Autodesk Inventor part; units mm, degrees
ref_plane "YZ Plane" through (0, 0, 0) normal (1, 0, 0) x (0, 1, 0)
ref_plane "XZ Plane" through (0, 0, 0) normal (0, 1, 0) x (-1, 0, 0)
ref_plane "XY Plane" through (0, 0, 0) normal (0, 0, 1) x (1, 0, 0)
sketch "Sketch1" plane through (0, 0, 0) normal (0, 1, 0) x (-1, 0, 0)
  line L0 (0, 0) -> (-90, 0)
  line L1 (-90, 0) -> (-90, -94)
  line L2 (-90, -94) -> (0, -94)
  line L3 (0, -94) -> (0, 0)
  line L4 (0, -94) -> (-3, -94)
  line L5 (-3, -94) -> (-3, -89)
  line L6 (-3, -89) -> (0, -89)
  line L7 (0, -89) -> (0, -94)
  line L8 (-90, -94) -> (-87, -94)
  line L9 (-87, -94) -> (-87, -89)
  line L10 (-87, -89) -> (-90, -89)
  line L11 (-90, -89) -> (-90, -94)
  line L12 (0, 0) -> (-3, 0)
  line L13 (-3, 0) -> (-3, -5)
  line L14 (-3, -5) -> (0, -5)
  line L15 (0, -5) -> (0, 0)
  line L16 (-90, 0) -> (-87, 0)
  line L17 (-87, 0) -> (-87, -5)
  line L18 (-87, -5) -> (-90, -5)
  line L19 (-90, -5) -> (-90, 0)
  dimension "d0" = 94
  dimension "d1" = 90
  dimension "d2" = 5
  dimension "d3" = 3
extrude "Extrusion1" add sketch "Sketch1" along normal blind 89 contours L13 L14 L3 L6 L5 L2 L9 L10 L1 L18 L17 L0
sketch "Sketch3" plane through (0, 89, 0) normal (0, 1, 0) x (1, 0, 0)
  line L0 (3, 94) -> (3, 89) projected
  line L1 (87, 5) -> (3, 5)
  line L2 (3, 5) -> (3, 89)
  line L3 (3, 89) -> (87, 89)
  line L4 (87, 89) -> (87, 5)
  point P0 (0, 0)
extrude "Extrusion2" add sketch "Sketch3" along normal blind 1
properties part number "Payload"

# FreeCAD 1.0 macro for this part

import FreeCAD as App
import Part
import Sketcher

V = App.Vector
Q = App.Units.Quantity

doc = App.newDocument("Part")
body = doc.addObject("PartDesign::Body", "Body")

sketch1 = body.newObject("Sketcher::SketchObject", "Sketch")
sketch1.AttachmentSupport = (doc.getObject("XZ_Plane"), [""])
sketch1.MapMode = "FlatFace"
sketch1.addGeometry([
    Part.LineSegment(V(3, -5, 0), V(3, 0, 0)),
    Part.LineSegment(V(3, 0, 0), V(87, 0, 0)),
    Part.LineSegment(V(87, 0, 0), V(87, -5, 0)),
    Part.LineSegment(V(87, -5, 0), V(90, -5, 0)),
    Part.LineSegment(V(90, -5, 0), V(90, -89, 0)),
    Part.LineSegment(V(90, -89, 0), V(87, -89, 0)),
    Part.LineSegment(V(87, -89, 0), V(87, -94, 0)),
    Part.LineSegment(V(87, -94, 0), V(3, -94, 0)),
    Part.LineSegment(V(3, -94, 0), V(3, -89, 0)),
    Part.LineSegment(V(3, -89, 0), V(0, -89, 0)),
    Part.LineSegment(V(0, -89, 0), V(0, -5, 0)),
    Part.LineSegment(V(0, -5, 0), V(3, -5, 0)),
], False)
sketch1.addConstraint([
    Sketcher.Constraint("Coincident", 0, 2, 1, 1),
    Sketcher.Constraint("Coincident", 1, 2, 2, 1),
    Sketcher.Constraint("Coincident", 2, 2, 3, 1),
    Sketcher.Constraint("Coincident", 3, 2, 4, 1),
    Sketcher.Constraint("Coincident", 4, 2, 5, 1),
    Sketcher.Constraint("Coincident", 5, 2, 6, 1),
    Sketcher.Constraint("Coincident", 6, 2, 7, 1),
    Sketcher.Constraint("Coincident", 7, 2, 8, 1),
    Sketcher.Constraint("Coincident", 8, 2, 9, 1),
    Sketcher.Constraint("Coincident", 9, 2, 10, 1),
    Sketcher.Constraint("Coincident", 10, 2, 11, 1),
    Sketcher.Constraint("Coincident", 11, 2, 0, 1),
    Sketcher.Constraint("Vertical", 0),
    Sketcher.Constraint("Horizontal", 1),
    Sketcher.Constraint("Vertical", 2),
    Sketcher.Constraint("Horizontal", 3),
    Sketcher.Constraint("Vertical", 4),
    Sketcher.Constraint("Horizontal", 5),
    Sketcher.Constraint("Vertical", 6),
    Sketcher.Constraint("Horizontal", 7),
    Sketcher.Constraint("Vertical", 8),
    Sketcher.Constraint("Horizontal", 9),
    Sketcher.Constraint("Vertical", 10),
    Sketcher.Constraint("Horizontal", 11),
    Sketcher.Constraint("PointOnObject", 0, 2, -1),
    Sketcher.Constraint("PointOnObject", 9, 2, -2),
    Sketcher.Constraint("Horizontal", 5, 2, 8, 2),
    Sketcher.Constraint("Horizontal", 3, 2, 10, 2),
    Sketcher.Constraint("Vertical", 2, 2, 5, 2),
    Sketcher.Constraint("Vertical", 0, 2, 7, 2),
    Sketcher.Constraint("Equal", 5, 9),
    Sketcher.Constraint("Equal", 7, 4),
    Sketcher.Constraint("Equal", 2, 6),
    Sketcher.Constraint("DistanceX", 3, 1, 3, 2, Q("3 mm")),
    Sketcher.Constraint("DistanceY", 0, 1, 0, 2, Q("5 mm")),
    Sketcher.Constraint("DistanceX", -1, 1, 3, 2, Q("90 mm")),
])
pad1 = body.newObject("PartDesign::Pad", "Pad")
pad1.Profile = sketch1
pad1.Length = 89
pad1.Reversed = True

sketch2 = body.newObject("Sketcher::SketchObject", "Sketch001")
sketch2.AttachmentSupport = (doc.getObject("XZ_Plane"), [""])
sketch2.MapMode = "FlatFace"
sketch2.AttachmentOffset = App.Placement(V(0, 0, -89), App.Rotation())
sketch2.addGeometry([
    Part.LineSegment(V(3, -5, 0), V(87, -5, 0)),
    Part.LineSegment(V(87, -5, 0), V(87, -89, 0)),
    Part.LineSegment(V(87, -89, 0), V(3, -89, 0)),
    Part.LineSegment(V(3, -89, 0), V(3, -5, 0)),
], False)
sketch2.addConstraint([
    Sketcher.Constraint("Coincident", 0, 2, 1, 1),
    Sketcher.Constraint("Coincident", 1, 2, 2, 1),
    Sketcher.Constraint("Coincident", 2, 2, 3, 1),
    Sketcher.Constraint("Coincident", 3, 2, 0, 1),
    Sketcher.Constraint("Horizontal", 0),
    Sketcher.Constraint("Vertical", 1),
    Sketcher.Constraint("Horizontal", 2),
    Sketcher.Constraint("Vertical", 3),
    Sketcher.Constraint("Equal", 2, 1),
    Sketcher.Constraint("DistanceX", 0, 1, 0, 2, Q("84 mm")),
    Sketcher.Constraint("DistanceX", -1, 1, 0, 2, Q("87 mm")),
    Sketcher.Constraint("DistanceY", 0, 2, -1, 1, Q("5 mm")),
])
pad2 = body.newObject("PartDesign::Pad", "Pad001")
pad2.Profile = sketch2
pad2.Length = 1
pad2.Reversed = True

doc.recompute()
